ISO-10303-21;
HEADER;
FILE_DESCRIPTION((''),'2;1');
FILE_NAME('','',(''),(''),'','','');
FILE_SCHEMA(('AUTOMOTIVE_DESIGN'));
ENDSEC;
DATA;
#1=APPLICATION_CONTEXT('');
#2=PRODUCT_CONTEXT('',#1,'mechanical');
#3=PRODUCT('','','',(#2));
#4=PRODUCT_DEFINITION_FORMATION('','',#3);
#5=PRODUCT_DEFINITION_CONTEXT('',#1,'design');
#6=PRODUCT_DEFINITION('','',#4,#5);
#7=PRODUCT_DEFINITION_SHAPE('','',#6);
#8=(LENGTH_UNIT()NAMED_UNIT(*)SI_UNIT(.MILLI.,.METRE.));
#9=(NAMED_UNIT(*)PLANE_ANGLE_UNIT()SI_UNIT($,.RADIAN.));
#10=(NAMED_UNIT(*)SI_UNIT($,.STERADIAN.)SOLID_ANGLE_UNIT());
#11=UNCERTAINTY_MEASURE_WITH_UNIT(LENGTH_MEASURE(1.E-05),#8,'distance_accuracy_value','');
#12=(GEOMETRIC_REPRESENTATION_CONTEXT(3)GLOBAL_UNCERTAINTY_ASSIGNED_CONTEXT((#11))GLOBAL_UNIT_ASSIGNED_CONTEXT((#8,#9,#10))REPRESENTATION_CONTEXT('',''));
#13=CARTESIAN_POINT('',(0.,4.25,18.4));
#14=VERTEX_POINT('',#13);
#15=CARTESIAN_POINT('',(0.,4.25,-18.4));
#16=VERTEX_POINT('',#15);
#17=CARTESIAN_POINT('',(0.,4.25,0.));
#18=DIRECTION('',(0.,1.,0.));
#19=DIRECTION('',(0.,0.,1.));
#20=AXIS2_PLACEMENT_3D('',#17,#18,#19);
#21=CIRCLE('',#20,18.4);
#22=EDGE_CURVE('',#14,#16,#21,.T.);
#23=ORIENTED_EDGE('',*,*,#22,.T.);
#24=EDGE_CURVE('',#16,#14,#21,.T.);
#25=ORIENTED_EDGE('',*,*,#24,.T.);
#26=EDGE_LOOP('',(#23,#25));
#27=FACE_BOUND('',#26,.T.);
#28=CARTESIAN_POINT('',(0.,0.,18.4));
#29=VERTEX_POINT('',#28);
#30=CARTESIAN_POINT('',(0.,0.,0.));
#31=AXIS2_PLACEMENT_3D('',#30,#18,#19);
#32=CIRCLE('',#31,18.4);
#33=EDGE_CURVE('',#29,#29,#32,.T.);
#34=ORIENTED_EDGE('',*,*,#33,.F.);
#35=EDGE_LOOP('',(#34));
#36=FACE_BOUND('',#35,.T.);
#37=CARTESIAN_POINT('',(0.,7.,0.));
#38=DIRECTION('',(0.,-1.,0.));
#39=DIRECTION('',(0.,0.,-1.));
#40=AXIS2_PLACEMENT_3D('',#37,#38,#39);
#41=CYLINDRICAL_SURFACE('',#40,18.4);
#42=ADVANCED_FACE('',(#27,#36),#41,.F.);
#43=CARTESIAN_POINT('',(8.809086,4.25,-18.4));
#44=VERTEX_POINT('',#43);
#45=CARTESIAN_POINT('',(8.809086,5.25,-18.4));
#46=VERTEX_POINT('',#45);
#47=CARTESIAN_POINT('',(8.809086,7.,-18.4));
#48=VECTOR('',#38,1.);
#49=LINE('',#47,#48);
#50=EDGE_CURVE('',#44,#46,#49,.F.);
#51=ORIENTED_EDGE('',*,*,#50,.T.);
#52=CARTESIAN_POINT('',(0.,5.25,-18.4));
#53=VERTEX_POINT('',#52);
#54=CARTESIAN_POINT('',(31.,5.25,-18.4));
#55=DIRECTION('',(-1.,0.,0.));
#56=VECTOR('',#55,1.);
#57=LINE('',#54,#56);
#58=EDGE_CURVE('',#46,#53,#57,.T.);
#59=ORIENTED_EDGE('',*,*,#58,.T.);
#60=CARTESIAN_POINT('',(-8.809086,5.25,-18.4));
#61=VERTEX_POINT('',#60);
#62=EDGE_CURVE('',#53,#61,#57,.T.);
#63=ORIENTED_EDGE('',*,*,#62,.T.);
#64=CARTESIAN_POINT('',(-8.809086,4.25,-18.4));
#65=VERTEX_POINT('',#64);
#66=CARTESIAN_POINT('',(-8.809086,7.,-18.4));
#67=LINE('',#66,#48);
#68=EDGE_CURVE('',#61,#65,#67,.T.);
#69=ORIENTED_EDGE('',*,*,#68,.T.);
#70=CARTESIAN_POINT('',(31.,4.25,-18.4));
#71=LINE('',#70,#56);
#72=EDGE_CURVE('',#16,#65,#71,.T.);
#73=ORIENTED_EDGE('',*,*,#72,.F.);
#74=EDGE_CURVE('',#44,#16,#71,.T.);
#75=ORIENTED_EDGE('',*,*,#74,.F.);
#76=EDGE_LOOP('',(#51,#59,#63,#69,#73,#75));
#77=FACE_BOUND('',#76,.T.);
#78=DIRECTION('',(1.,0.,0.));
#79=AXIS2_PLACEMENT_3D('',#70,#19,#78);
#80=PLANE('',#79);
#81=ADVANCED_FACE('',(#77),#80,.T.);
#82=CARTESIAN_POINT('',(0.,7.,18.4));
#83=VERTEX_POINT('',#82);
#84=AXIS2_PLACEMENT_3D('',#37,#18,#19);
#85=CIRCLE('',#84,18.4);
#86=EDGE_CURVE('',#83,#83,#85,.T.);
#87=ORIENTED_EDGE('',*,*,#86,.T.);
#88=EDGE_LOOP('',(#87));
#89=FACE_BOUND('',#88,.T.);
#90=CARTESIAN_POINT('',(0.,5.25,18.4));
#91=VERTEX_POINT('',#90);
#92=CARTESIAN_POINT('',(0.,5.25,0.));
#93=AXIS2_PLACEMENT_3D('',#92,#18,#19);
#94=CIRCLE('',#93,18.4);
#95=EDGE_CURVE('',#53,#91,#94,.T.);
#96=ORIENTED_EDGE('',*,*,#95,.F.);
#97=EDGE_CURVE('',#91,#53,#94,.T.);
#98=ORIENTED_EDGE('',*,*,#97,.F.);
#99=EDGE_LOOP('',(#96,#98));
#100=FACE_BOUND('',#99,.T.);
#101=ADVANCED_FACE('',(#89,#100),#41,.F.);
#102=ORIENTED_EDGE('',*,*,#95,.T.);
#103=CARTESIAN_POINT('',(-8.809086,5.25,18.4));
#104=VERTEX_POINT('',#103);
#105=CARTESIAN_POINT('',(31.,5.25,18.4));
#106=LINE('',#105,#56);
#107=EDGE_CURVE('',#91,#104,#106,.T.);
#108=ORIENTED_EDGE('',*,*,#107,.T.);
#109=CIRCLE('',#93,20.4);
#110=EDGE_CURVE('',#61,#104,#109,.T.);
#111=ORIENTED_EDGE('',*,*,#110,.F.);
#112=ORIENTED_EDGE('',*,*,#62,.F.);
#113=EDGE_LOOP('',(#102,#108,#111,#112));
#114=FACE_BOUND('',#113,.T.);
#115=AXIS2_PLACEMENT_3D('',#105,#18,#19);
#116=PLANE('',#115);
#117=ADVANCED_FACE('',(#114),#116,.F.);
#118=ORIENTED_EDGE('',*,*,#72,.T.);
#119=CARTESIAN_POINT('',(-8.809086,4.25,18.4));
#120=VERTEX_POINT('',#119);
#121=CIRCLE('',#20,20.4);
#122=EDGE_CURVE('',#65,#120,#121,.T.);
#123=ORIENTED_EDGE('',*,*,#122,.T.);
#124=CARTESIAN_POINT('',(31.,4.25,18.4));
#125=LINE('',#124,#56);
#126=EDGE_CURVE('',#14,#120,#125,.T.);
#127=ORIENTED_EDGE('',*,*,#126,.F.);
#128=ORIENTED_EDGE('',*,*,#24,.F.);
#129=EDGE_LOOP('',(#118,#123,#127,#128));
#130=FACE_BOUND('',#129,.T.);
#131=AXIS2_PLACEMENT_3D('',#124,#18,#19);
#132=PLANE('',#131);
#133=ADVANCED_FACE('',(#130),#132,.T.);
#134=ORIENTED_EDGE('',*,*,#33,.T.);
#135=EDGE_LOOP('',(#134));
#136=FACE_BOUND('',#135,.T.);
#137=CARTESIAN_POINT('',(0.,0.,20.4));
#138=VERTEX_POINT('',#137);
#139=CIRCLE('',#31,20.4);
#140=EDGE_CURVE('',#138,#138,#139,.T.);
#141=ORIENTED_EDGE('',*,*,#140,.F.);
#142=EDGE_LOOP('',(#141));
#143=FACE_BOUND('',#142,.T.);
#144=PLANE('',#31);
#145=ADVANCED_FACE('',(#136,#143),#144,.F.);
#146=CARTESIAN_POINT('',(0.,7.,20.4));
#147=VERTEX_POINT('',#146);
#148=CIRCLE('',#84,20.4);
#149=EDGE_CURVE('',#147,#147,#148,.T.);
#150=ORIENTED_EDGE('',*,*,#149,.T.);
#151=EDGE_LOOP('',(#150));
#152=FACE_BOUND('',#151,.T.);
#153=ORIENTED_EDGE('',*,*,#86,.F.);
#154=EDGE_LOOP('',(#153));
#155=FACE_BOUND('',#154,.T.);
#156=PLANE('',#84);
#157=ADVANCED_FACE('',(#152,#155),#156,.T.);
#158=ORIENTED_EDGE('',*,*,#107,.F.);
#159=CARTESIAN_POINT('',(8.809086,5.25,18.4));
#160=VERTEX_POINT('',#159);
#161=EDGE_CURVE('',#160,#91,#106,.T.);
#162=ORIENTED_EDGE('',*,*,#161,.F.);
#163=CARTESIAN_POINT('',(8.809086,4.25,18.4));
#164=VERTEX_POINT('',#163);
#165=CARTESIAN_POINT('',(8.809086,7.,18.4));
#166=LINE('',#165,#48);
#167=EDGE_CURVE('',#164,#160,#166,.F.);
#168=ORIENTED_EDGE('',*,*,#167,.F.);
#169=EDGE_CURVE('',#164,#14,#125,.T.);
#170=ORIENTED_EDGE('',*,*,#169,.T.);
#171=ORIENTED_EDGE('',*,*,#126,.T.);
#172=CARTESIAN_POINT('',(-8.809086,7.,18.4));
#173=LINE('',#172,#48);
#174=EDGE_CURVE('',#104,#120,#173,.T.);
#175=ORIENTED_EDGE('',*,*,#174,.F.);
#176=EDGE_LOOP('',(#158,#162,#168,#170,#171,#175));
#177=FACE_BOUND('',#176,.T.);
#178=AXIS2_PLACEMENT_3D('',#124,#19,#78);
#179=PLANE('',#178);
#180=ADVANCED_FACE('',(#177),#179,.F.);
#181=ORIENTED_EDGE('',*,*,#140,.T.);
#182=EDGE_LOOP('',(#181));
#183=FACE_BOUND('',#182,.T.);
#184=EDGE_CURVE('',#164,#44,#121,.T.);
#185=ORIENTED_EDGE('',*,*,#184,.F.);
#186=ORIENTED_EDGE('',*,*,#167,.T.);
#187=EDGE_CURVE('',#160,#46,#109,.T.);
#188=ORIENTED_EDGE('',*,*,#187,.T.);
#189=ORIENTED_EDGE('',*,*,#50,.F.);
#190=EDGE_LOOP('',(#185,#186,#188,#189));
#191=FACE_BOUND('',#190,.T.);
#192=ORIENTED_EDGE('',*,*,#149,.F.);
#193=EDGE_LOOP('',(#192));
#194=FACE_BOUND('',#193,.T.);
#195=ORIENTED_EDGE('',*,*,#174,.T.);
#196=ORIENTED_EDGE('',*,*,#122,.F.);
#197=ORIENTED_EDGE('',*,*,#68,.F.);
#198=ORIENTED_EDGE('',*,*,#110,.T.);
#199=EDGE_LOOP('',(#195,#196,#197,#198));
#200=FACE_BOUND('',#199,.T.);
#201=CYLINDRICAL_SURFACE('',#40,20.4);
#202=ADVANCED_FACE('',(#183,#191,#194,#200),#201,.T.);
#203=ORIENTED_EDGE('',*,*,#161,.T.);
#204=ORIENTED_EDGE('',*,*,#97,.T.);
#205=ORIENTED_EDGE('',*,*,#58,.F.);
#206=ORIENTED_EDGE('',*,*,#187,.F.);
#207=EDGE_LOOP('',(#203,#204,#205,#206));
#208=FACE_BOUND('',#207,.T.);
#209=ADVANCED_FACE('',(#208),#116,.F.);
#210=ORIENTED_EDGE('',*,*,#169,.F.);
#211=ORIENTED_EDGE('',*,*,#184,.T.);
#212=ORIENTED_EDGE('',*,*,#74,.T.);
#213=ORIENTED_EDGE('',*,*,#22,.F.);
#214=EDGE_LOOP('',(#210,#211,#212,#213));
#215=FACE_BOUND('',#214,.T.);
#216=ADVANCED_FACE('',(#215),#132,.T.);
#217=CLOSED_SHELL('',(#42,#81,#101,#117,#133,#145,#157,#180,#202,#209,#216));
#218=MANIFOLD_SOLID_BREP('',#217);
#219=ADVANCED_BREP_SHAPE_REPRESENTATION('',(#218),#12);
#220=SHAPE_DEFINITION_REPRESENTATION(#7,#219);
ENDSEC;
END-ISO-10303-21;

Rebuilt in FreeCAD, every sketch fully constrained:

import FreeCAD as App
import Part
import Sketcher
from FreeCAD import Vector

doc = App.newDocument("Part")
params = doc.addObject("Spreadsheet::Sheet", "Params")
for row, (alias, value) in enumerate([
    ("sketch1_diameter", "40.8 mm"),
    ("sketch1_diameter2", "36.8 mm"),
    ("pad1_length", "7 mm"),
    ("sketch2_width", "1 mm"),
    ("sketch2_height", "36.8 mm"),
], start=1):
    params.set(f"A{row}", alias)
    params.set(f"B{row}", "=" + value)
    params.setAlias(f"B{row}", alias)

body = doc.addObject("PartDesign::Body", "Body")

sketch1 = body.newObject("Sketcher::SketchObject", "Sketch")
sketch1.AttachmentSupport = (doc.getObject("XZ_Plane"), [""])
sketch1.MapMode = "FlatFace"
sketch1.addGeometry(Part.Circle(Vector(0, 0, 0), Vector(0, 0, 1), 20), False)
sketch1.addGeometry(Part.Circle(Vector(0, 0, 0), Vector(0, 0, 1), 18), False)
sketch1.addConstraint(Sketcher.Constraint("Coincident", 0, 3, -1, 1))
sketch1.addConstraint(Sketcher.Constraint("Coincident", 1, 3, -1, 1))
sketch1.addConstraint(Sketcher.Constraint("Diameter", 0, 40.8))
sketch1.addConstraint(Sketcher.Constraint("Diameter", 1, 36.8))
sketch1.setExpression("Constraints[2]", "Params.sketch1_diameter")
sketch1.setExpression("Constraints[3]", "Params.sketch1_diameter2")
pad1 = body.newObject("PartDesign::Pad", "Pad")
pad1.Profile = sketch1
pad1.setExpression("Length", "Params.pad1_length")
pad1.Reversed = True

sketch2 = body.newObject("Sketcher::SketchObject", "Sketch001")
sketch2.AttachmentSupport = (doc.getObject("YZ_Plane"), [""])
sketch2.MapMode = "FlatFace"
sketch2.addGeometry(Part.LineSegment(Vector(5.2, 18.4, 0), Vector(4.2, 18.4, 0)), False)
sketch2.addGeometry(Part.LineSegment(Vector(4.2, 18.4, 0), Vector(4.2, -18.4, 0)), False)
sketch2.addGeometry(Part.LineSegment(Vector(4.2, -18.4, 0), Vector(5.2, -18.4, 0)), False)
sketch2.addGeometry(Part.LineSegment(Vector(5.2, -18.4, 0), Vector(5.2, 18.4, 0)), False)
sketch2.addConstraint(Sketcher.Constraint("Coincident", 0, 2, 1, 1))
sketch2.addConstraint(Sketcher.Constraint("Coincident", 1, 2, 2, 1))
sketch2.addConstraint(Sketcher.Constraint("Coincident", 2, 2, 3, 1))
sketch2.addConstraint(Sketcher.Constraint("Coincident", 3, 2, 0, 1))
sketch2.addConstraint(Sketcher.Constraint("Horizontal", 0))
sketch2.addConstraint(Sketcher.Constraint("Vertical", 1))
sketch2.addConstraint(Sketcher.Constraint("Horizontal", 2))
sketch2.addConstraint(Sketcher.Constraint("Vertical", 3))
sketch2.addConstraint(Sketcher.Constraint("DistanceX", 0, 2, 0, 1, 1.0))
sketch2.addConstraint(Sketcher.Constraint("DistanceY", 1, 2, 1, 1, 36.8))
sketch2.addConstraint(Sketcher.Constraint("DistanceY", -1, 1, 0, 2, 18.4))
sketch2.addConstraint(Sketcher.Constraint("DistanceX", -1, 1, 0, 2, 4.25))
sketch2.setExpression("Constraints[8]", "Params.sketch2_width")
sketch2.setExpression("Constraints[9]", "Params.sketch2_height")
pocket1 = body.newObject("PartDesign::Pocket", "Pocket")
pocket1.Profile = sketch2
pocket1.Type = "ThroughAll"
pocket1.Midplane = True

doc.recompute()
